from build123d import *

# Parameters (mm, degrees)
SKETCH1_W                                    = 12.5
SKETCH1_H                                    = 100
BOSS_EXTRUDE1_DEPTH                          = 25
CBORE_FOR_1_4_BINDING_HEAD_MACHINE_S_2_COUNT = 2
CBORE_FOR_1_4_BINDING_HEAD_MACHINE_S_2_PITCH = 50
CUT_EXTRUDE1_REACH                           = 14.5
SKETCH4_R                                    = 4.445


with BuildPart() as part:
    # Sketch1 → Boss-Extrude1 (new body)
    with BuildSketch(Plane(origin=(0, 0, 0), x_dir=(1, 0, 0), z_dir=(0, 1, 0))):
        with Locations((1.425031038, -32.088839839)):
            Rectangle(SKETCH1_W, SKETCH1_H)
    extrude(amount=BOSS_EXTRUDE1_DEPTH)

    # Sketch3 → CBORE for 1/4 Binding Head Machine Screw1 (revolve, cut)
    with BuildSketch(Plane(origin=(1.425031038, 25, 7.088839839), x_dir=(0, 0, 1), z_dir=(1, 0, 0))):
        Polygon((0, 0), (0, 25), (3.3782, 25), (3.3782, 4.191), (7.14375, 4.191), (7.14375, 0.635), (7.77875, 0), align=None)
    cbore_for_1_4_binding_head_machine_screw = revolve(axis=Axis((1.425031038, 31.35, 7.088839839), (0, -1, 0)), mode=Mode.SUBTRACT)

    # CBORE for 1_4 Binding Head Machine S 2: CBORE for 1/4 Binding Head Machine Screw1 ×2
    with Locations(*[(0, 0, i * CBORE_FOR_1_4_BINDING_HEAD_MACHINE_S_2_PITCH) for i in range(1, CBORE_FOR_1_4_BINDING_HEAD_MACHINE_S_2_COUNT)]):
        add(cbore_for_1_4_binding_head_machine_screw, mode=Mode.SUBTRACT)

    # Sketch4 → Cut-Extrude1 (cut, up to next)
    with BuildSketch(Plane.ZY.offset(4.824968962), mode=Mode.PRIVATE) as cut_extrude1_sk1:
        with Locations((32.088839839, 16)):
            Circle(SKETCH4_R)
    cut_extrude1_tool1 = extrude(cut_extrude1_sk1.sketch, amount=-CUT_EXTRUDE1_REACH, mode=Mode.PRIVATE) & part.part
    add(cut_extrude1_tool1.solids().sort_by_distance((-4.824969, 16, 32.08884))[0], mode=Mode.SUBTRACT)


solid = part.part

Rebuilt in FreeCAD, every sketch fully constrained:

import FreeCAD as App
import Part
import Sketcher
Q = App.Units.Quantity

doc = App.newDocument("Part")
body = doc.addObject("PartDesign::Body", "Body")

# Sketch on XZ plane
sketch1 = body.newObject("Sketcher::SketchObject", "Sketch")
sketch1.AttachmentSupport = (doc.getObject("XZ_Plane"), [""])
sketch1.MapMode = "FlatFace"
sketch1.addGeometry(Part.LineSegment(App.Vector(-5, -18, 0), App.Vector(-5, 82, 0)), False)
sketch1.addGeometry(Part.LineSegment(App.Vector(-5, 82, 0), App.Vector(8, 82, 0)), False)
sketch1.addGeometry(Part.LineSegment(App.Vector(8, 82, 0), App.Vector(8, -18, 0)), False)
sketch1.addGeometry(Part.LineSegment(App.Vector(8, -18, 0), App.Vector(-5, -18, 0)), False)
sketch1.addConstraint(Sketcher.Constraint("Coincident", 0, 2, 1, 1))
sketch1.addConstraint(Sketcher.Constraint("Coincident", 1, 2, 2, 1))
sketch1.addConstraint(Sketcher.Constraint("Coincident", 2, 2, 3, 1))
sketch1.addConstraint(Sketcher.Constraint("Coincident", 3, 2, 0, 1))
sketch1.addConstraint(Sketcher.Constraint("Vertical", 0))
sketch1.addConstraint(Sketcher.Constraint("Horizontal", 1))
sketch1.addConstraint(Sketcher.Constraint("Vertical", 2))
sketch1.addConstraint(Sketcher.Constraint("Horizontal", 3))
sketch1.addConstraint(Sketcher.Constraint("DistanceY", 0, 1, 0, 2, Q("100 mm")))
sketch1.addConstraint(Sketcher.Constraint("DistanceX", 1, 1, 1, 2, Q("12.5 mm")))
sketch1.addConstraint(Sketcher.Constraint("DistanceX", 0, 2, -1, 1, Q("4.824969 mm")))
sketch1.addConstraint(Sketcher.Constraint("DistanceY", -1, 1, 0, 2, Q("82.08884 mm")))
pad1 = body.newObject("PartDesign::Pad", "Pad")
pad1.Profile = sketch1
pad1.Length = 25
pad1.Reversed = True

# Sketch on YZ plane
sketch2 = body.newObject("Sketcher::SketchObject", "Sketch001")
sketch2.AttachmentSupport = (doc.getObject("YZ_Plane"), [""])
sketch2.MapMode = "FlatFace"
sketch2.AttachmentOffset = App.Placement(App.Vector(0, 0, 1.425031), App.Rotation())
sketch2.addGeometry(Part.LineSegment(App.Vector(0, 7.1, 0), App.Vector(25, 7.1, 0)), False)
sketch2.addGeometry(Part.LineSegment(App.Vector(25, 7.1, 0), App.Vector(25, 14.9, 0)), False)
sketch2.addGeometry(Part.LineSegment(App.Vector(25, 14.9, 0), App.Vector(24.4, 14.2, 0)), False)
sketch2.addGeometry(Part.LineSegment(App.Vector(24.4, 14.2, 0), App.Vector(20.8, 14.2, 0)), False)
sketch2.addGeometry(Part.LineSegment(App.Vector(20.8, 14.2, 0), App.Vector(20.8, 10.5, 0)), False)
sketch2.addGeometry(Part.LineSegment(App.Vector(20.8, 10.5, 0), App.Vector(0, 10.5, 0)), False)
sketch2.addGeometry(Part.LineSegment(App.Vector(0, 10.5, 0), App.Vector(0, 7.1, 0)), False)
sketch2.addGeometry(Part.LineSegment(App.Vector(25, 7.1, 0), App.Vector(0, 7.1, 0)), True)  # axis
sketch2.addConstraint(Sketcher.Constraint("Coincident", 0, 2, 1, 1))
sketch2.addConstraint(Sketcher.Constraint("Coincident", 1, 2, 2, 1))
sketch2.addConstraint(Sketcher.Constraint("Coincident", 2, 2, 3, 1))
sketch2.addConstraint(Sketcher.Constraint("Coincident", 3, 2, 4, 1))
sketch2.addConstraint(Sketcher.Constraint("Coincident", 4, 2, 5, 1))
sketch2.addConstraint(Sketcher.Constraint("Coincident", 5, 2, 6, 1))
sketch2.addConstraint(Sketcher.Constraint("Coincident", 6, 2, 0, 1))
sketch2.addConstraint(Sketcher.Constraint("Horizontal", 0))
sketch2.addConstraint(Sketcher.Constraint("Vertical", 1))
sketch2.addConstraint(Sketcher.Constraint("Horizontal", 3))
sketch2.addConstraint(Sketcher.Constraint("Vertical", 4))
sketch2.addConstraint(Sketcher.Constraint("Horizontal", 5))
sketch2.addConstraint(Sketcher.Constraint("Vertical", 6))
sketch2.addConstraint(Sketcher.Constraint("Horizontal", 7))
sketch2.addConstraint(Sketcher.Constraint("Coincident", 7, 1, 0, 2))
sketch2.addConstraint(Sketcher.Constraint("PointOnObject", 5, 2, -2))
sketch2.addConstraint(Sketcher.Constraint("PointOnObject", 7, 2, -2))
sketch2.addConstraint(Sketcher.Constraint("DistanceX", 0, 1, 0, 2, Q("25 mm")))
sketch2.addConstraint(Sketcher.Constraint("Angle", 2, Q("-135 deg")))
sketch2.addConstraint(Sketcher.Constraint("DistanceX", 3, 2, 3, 1, Q("3.556 mm")))
sketch2.addConstraint(Sketcher.Constraint("DistanceX", 5, 2, 5, 1, Q("20.809 mm")))
sketch2.addConstraint(Sketcher.Constraint("DistanceY", 6, 2, 6, 1, Q("3.3782 mm")))
sketch2.addConstraint(Sketcher.Constraint("DistanceY", 1, 1, 1, 2, Q("7.77875 mm")))
sketch2.addConstraint(Sketcher.Constraint("DistanceY", -1, 1, 0, 2, Q("7.08884 mm")))
groove = body.newObject("PartDesign::Groove", "Groove")
groove.Profile = sketch2
groove.ReferenceAxis = (sketch2, ["Axis0"])
groove.Angle = 360
doc.recompute()

linearpattern = body.newObject("PartDesign::LinearPattern", "LinearPattern")
linearpattern.Originals = [groove]
linearpattern.Direction = (doc.getObject("Z_Axis"), [""])
linearpattern.Mode = "offset"
linearpattern.Offset = 50
linearpattern.Occurrences = 2
body.Tip = linearpattern

# Sketch on YZ plane
sketch3 = body.newObject("Sketcher::SketchObject", "Sketch002")
sketch3.AttachmentSupport = (doc.getObject("YZ_Plane"), [""])
sketch3.MapMode = "FlatFace"
sketch3.AttachmentOffset = App.Placement(App.Vector(0, 0, -4.824969), App.Rotation())
sketch3.addGeometry(Part.Circle(App.Vector(16, 32.1, 0), App.Vector(0, 0, 1), 4.4), False)
sketch3.addConstraint(Sketcher.Constraint("Diameter", 0, Q("8.89 mm")))
sketch3.addConstraint(Sketcher.Constraint("DistanceX", -1, 1, 0, 3, Q("16 mm")))
sketch3.addConstraint(Sketcher.Constraint("DistanceY", -1, 1, 0, 3, Q("32.08884 mm")))
pocket1 = body.newObject("PartDesign::Pocket", "Pocket")
pocket1.Profile = sketch3
pocket1.Type = "UpToFirst"
pocket1.Reversed = True

doc.recompute()
